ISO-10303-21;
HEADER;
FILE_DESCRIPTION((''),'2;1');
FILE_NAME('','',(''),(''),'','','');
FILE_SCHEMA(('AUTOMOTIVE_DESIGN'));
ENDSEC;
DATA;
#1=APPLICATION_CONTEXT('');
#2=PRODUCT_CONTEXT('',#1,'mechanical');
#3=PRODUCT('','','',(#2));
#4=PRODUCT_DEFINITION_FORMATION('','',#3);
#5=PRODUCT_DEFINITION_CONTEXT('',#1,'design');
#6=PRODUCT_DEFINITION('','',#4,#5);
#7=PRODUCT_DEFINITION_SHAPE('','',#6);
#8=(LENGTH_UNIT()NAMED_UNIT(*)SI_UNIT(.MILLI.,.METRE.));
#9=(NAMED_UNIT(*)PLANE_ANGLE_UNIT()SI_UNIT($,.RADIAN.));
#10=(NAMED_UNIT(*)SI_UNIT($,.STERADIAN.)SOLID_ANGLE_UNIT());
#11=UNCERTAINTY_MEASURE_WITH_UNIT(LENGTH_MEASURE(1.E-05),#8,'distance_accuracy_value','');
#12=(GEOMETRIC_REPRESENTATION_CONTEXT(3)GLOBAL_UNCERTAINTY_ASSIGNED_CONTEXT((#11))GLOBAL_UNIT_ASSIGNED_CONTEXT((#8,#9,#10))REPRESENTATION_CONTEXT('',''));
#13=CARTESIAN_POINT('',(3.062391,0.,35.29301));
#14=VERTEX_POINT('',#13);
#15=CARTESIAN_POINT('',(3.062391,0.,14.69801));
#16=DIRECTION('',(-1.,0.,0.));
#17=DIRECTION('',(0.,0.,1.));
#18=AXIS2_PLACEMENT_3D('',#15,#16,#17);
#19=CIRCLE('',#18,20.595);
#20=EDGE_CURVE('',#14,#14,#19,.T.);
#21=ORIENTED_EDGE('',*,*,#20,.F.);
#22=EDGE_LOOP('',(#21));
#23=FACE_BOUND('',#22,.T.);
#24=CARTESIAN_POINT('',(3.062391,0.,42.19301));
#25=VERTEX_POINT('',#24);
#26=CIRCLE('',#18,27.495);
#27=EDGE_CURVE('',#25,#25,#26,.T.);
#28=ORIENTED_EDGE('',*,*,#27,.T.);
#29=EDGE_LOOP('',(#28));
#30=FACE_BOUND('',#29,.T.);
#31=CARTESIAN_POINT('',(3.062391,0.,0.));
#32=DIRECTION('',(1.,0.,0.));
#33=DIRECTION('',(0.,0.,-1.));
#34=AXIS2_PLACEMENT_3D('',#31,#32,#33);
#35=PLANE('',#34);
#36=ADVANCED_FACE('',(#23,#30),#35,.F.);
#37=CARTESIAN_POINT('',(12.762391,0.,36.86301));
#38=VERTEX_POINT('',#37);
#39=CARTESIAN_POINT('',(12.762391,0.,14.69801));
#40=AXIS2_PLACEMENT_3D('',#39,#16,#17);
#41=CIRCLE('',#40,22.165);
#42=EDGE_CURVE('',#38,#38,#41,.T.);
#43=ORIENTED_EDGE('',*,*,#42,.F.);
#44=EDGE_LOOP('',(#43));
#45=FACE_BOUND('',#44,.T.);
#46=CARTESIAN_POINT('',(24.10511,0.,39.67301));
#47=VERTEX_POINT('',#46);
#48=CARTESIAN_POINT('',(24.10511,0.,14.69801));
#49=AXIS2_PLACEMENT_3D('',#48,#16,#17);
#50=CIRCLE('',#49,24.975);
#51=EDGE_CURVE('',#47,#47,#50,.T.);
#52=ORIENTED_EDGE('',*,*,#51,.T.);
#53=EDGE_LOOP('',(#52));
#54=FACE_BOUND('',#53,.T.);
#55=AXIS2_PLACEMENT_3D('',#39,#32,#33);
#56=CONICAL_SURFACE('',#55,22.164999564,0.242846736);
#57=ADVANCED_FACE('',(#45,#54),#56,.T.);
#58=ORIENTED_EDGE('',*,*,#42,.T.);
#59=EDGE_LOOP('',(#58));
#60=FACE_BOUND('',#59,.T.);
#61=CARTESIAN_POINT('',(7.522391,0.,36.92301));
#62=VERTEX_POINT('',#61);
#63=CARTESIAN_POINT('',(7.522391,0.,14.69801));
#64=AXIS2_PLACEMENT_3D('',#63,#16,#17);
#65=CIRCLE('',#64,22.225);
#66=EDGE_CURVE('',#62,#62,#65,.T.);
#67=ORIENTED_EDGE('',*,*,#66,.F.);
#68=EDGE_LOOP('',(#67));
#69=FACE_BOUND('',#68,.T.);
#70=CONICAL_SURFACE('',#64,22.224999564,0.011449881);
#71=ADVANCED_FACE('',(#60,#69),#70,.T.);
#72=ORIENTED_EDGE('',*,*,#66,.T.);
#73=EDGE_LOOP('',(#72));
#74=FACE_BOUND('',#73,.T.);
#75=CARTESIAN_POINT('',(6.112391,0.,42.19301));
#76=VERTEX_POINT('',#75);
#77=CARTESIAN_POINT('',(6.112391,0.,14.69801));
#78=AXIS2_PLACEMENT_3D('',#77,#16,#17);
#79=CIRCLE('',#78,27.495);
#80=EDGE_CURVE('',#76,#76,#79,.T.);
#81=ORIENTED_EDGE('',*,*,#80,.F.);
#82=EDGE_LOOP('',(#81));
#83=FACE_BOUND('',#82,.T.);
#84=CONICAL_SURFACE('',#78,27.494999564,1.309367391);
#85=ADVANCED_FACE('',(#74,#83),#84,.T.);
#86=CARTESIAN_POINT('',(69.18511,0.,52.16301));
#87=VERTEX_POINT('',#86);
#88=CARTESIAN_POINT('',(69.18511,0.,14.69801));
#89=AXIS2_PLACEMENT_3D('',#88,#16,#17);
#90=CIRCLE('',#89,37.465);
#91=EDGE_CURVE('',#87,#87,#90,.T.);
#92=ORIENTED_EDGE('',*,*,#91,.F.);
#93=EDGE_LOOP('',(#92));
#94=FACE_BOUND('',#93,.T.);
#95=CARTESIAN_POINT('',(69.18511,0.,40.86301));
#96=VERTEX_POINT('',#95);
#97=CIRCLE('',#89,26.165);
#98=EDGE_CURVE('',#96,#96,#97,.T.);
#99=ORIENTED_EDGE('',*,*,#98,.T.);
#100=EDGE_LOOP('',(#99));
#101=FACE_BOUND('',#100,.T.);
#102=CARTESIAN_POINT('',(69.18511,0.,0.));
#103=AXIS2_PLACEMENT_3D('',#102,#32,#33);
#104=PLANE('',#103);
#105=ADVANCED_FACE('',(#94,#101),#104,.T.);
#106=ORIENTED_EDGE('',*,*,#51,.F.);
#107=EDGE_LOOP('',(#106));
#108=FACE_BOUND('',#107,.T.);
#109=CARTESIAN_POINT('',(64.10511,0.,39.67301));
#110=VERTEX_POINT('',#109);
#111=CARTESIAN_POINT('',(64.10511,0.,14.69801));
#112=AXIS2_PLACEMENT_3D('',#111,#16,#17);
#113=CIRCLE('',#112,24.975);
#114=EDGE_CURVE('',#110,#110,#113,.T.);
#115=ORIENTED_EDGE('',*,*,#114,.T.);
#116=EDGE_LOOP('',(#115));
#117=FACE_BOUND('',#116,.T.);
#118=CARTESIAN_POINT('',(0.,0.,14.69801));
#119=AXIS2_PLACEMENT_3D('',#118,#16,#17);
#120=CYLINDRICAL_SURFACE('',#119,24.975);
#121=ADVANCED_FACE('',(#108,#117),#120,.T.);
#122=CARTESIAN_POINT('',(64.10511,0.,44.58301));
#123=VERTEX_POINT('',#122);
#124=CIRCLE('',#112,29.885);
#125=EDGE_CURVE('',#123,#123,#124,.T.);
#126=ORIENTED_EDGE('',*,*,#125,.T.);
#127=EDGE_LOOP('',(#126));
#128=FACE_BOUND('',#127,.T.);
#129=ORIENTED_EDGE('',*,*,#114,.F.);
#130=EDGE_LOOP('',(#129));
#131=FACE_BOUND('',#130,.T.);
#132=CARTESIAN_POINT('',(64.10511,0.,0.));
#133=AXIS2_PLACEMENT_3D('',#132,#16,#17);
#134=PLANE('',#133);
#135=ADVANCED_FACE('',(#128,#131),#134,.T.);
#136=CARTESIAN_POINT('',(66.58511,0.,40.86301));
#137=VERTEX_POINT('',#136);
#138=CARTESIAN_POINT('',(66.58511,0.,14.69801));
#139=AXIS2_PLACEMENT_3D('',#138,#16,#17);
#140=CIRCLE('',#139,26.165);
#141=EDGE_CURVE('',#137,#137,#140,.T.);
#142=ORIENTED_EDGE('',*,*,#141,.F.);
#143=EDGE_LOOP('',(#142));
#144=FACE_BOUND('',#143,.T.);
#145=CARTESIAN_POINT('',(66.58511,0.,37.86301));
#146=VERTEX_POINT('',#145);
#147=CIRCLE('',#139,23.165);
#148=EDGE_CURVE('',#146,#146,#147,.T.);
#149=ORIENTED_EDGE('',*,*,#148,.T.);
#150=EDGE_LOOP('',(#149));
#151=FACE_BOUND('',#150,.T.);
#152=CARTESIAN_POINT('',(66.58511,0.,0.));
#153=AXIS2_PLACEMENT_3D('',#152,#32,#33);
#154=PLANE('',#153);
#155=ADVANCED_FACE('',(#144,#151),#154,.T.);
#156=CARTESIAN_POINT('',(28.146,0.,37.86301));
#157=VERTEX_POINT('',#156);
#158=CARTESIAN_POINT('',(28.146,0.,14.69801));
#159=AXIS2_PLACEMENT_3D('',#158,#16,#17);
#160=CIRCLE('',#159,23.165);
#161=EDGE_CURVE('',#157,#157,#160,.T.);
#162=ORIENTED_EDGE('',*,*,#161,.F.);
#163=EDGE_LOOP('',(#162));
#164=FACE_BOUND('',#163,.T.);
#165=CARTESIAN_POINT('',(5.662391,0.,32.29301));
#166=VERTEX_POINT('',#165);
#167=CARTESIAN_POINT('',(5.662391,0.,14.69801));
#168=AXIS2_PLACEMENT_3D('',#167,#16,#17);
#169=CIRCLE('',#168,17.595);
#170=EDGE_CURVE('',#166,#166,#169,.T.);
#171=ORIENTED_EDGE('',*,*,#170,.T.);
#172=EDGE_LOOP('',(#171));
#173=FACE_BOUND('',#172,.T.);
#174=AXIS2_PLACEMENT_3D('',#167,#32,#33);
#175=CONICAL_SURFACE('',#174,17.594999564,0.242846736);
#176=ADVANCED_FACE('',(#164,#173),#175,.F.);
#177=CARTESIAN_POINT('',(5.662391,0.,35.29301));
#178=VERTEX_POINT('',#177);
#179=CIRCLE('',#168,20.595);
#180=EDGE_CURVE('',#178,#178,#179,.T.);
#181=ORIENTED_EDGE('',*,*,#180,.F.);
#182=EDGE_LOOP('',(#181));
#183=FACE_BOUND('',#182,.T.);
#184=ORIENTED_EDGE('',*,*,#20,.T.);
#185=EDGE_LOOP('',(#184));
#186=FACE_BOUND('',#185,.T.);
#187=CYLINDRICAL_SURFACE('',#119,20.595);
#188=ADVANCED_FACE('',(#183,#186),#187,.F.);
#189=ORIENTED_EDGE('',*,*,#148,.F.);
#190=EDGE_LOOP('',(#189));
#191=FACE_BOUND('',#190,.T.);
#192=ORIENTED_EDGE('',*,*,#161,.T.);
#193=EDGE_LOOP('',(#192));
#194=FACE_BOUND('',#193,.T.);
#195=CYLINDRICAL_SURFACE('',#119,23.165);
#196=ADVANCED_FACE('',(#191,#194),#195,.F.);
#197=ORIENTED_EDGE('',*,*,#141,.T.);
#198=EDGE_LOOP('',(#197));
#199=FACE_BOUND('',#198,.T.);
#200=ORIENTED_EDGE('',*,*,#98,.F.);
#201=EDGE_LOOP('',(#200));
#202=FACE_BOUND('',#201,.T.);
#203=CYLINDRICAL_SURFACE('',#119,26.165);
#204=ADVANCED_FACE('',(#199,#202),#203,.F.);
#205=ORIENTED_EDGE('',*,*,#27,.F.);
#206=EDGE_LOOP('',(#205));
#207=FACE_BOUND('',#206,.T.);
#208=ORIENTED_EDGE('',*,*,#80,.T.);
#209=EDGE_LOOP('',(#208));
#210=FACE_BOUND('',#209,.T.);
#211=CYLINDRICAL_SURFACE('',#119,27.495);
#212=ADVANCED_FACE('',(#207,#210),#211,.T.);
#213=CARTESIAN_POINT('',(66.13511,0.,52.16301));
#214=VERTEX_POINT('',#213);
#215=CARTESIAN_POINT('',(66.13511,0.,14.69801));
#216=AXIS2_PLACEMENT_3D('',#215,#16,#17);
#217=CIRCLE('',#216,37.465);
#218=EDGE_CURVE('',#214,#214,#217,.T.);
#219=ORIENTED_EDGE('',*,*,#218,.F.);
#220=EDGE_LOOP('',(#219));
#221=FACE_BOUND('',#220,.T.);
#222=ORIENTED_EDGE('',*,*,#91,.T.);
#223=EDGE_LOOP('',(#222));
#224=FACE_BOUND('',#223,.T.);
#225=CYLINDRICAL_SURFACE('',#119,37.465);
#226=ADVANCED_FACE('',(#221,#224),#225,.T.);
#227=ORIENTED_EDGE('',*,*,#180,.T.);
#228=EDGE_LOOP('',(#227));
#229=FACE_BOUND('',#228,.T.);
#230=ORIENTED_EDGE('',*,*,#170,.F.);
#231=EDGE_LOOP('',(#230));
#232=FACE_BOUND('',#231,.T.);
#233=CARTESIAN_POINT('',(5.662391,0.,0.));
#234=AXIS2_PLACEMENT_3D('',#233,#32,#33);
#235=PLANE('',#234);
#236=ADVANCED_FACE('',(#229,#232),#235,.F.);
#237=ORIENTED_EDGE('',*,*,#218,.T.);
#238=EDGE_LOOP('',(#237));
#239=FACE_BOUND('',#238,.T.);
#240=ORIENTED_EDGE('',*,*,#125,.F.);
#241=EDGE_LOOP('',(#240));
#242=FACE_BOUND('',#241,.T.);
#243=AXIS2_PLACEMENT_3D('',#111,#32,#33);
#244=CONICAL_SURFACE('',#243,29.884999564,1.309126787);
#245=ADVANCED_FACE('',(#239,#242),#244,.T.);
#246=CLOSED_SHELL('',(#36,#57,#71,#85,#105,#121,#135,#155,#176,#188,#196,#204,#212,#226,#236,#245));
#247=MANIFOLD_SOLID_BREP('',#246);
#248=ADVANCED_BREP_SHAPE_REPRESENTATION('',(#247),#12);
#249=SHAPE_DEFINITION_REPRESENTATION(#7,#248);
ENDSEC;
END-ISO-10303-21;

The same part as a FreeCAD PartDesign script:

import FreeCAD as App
import Part
import Sketcher
from FreeCAD import Vector


def add_polygon(sketch, points):
    """Adds a closed chain of lines whose ends are joined by coincident constraints."""
    first, n = sketch.GeometryCount, len(points)
    for a, b in zip(points, points[1:] + points[:1]):
        sketch.addGeometry(Part.LineSegment(App.Vector(*a, 0), App.Vector(*b, 0)), False)
    for i in range(n):
        sketch.addConstraint(Sketcher.Constraint("Coincident", first + i, 2, first + (i + 1) % n, 1))

doc = App.newDocument("Part")
body = doc.addObject("PartDesign::Body", "Body")

# Sketch on XZ plane
sketch1 = body.newObject("Sketcher::SketchObject", "Sketch")
sketch1.AttachmentSupport = (doc.getObject("XZ_Plane"), [""])
sketch1.MapMode = "FlatFace"
add_polygon(sketch1, [(66.6, -8.5), (66.6, -11.5), (69.2, -11.5), (69.2, -22.8), (66.1, -22.8), (64.1, -15.2), (64.1, -10.3), (24.1, -10.3), (12.8, -7.5), (7.5, -7.5), (6.1, -12.8), (3.1, -12.8), (3.1, -5.9), (5.7, -5.9), (5.7, -2.9), (28.1, -8.5)])  # lines 0-15
sketch1.addGeometry(Part.LineSegment(Vector(3.1, 14.7, 0), Vector(69.2, 14.7, 0)), True)  # axis
sketch1.addConstraint([
    Sketcher.Constraint("Vertical", 0),
    Sketcher.Constraint("Horizontal", 1),
    Sketcher.Constraint("Vertical", 2),
    Sketcher.Constraint("Horizontal", 3),
    Sketcher.Constraint("Vertical", 5),
    Sketcher.Constraint("Horizontal", 6),
    Sketcher.Constraint("Horizontal", 10),
    Sketcher.Constraint("Vertical", 11),
    Sketcher.Constraint("Horizontal", 12),
    Sketcher.Constraint("Vertical", 13),
    Sketcher.Constraint("Horizontal", 15),
    Sketcher.Constraint("Horizontal", 16),
    Sketcher.Constraint("Parallel", 7, 14),
    Sketcher.Constraint("Vertical", 11, 2, 16, 1),
    Sketcher.Constraint("Vertical", 2, 2, 16, 2),
    Sketcher.Constraint("Equal", 3, 10),
    Sketcher.Constraint("Equal", 1, 12),
    Sketcher.Constraint("Equal", 0, 13),
    Sketcher.Constraint("DistanceX", 6, 2, 6, 1, 40.0),
    Sketcher.Constraint("DistanceY", 0, 2, 0, 1, 3.0),
    Sketcher.Constraint("DistanceX", 1, 1, 1, 2, 2.6),
    Sketcher.Constraint("DistanceY", 2, 2, 2, 1, 11.3),
    Sketcher.Constraint("DistanceY", 11, 1, 11, 2, 6.9),
    Sketcher.Constraint("DistanceY", 0, 2, 7, 2, 4.0),
    Sketcher.Constraint("DistanceX", 3, 2, 3, 1, 3.05),
    Sketcher.Constraint("DistanceY", 5, 1, 5, 2, 4.91),
    Sketcher.Constraint("DistanceX", 10, 2, 7, 2, 9.7),
    Sketcher.Constraint("DistanceX", 4, 2, 0, 2, 2.48),
    Sketcher.Constraint("DistanceY", 4, 2, 0, 2, 3.72),
    Sketcher.Constraint("DistanceX", 8, 2, 7, 2, 5.24),
    Sketcher.Constraint("DistanceY", 8, 2, 7, 2, 0.06),
    Sketcher.Constraint("DistanceY", 9, 2, 8, 2, 5.27),
    Sketcher.Constraint("DistanceX", -1, 1, 14, 2, 28.146),
    Sketcher.Constraint("DistanceY", 13, 2, 16, 1, 17.595),
    Sketcher.Constraint("DistanceX", 15, 1, 15, 2, 38.439109),
    Sketcher.Constraint("DistanceY", 0, 2, -1, 1, 11.46699),
])
revolution = body.newObject("PartDesign::Revolution", "Revolution")
revolution.Profile = sketch1
revolution.ReferenceAxis = (sketch1, ["Axis0"])
revolution.Angle = 360

doc.recompute()
